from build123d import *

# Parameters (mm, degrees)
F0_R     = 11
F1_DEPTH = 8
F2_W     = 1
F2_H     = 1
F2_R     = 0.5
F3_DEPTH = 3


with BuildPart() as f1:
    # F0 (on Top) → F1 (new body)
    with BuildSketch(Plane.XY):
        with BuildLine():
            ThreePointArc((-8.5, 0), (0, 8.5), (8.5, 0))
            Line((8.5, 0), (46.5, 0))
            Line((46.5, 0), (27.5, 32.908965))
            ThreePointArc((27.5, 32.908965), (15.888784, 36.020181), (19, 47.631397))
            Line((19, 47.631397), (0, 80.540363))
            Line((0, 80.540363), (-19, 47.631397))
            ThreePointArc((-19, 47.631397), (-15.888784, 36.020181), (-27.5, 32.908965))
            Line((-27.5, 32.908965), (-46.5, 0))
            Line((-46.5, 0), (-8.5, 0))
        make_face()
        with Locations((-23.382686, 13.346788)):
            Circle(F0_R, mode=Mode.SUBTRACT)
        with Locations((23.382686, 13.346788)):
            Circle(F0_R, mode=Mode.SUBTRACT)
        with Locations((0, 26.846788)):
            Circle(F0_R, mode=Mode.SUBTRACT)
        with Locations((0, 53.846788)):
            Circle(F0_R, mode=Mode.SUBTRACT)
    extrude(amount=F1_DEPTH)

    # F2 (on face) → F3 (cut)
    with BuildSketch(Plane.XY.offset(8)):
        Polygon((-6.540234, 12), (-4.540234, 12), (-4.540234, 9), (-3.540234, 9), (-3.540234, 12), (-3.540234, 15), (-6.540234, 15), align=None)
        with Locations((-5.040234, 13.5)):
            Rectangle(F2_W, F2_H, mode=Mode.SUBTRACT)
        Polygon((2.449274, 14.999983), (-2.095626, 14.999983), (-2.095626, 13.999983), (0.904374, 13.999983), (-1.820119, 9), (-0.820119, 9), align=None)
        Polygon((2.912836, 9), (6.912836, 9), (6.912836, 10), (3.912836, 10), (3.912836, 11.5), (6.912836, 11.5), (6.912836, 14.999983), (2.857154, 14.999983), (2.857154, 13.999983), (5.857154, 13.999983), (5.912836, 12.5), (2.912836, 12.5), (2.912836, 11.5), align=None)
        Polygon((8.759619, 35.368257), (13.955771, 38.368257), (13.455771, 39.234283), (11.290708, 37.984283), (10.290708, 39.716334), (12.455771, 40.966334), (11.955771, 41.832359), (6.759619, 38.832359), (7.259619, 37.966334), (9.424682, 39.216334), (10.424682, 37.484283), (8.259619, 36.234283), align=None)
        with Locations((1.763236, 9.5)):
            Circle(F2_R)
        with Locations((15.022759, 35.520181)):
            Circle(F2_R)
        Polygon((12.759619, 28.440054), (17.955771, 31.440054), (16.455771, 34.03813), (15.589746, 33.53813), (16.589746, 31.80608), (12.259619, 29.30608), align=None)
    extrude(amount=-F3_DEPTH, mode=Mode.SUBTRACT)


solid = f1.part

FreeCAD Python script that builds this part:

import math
import FreeCAD as App
import Part
import Sketcher
from FreeCAD import Vector
Q = App.Units.Quantity


def add_polygon(sketch, points):
    """Adds a closed chain of lines whose ends are joined by coincident constraints."""
    first, n = sketch.GeometryCount, len(points)
    for a, b in zip(points, points[1:] + points[:1]):
        sketch.addGeometry(Part.LineSegment(App.Vector(*a, 0), App.Vector(*b, 0)), False)
    for i in range(n):
        sketch.addConstraint(Sketcher.Constraint("Coincident", first + i, 2, first + (i + 1) % n, 1))

doc = App.newDocument("Part")
params = doc.addObject("Spreadsheet::Sheet", "Params")
for row, (alias, value) in enumerate([
    ("sketch1_diameter", "22 mm"),
    ("sketch1_radius", "8.5 mm"),
    ("sketch1_width", "38 mm"),
    ("sketch1_length", "38 mm"),
    ("pad1_length", "8 mm"),
    ("sketch2_diameter", "1 mm"),
    ("sketch2_width", "2 mm"),
    ("sketch2_width2", "1 mm"),
    ("sketch2_width3", "4 mm"),
    ("sketch2_length", "6 mm"),
    ("pocket1_length", "3 mm"),
], start=1):
    params.set(f"A{row}", alias)
    params.set(f"B{row}", "=" + value)
    params.setAlias(f"B{row}", alias)

body = doc.addObject("PartDesign::Body", "Body")

# Sketch on XY plane
sketch1 = body.newObject("Sketcher::SketchObject", "Sketch")
sketch1.AttachmentSupport = (doc.getObject("XY_Plane"), [""])
sketch1.MapMode = "FlatFace"
sketch1.addGeometry([
    Part.ArcOfCircle(Part.Circle(Vector(0, 0, 0), Vector(0, 0, 1), 8), math.radians(0), math.radians(180)),  # 0
    Part.LineSegment(Vector(8, 0, 0), Vector(46, 0, 0)),  # 1
    Part.LineSegment(Vector(46, 0, 0), Vector(28, 33, 0)),  # 2
    Part.ArcOfCircle(Part.Circle(Vector(23, 40, 0), Vector(0, 0, 1), 9), math.radians(120), math.radians(300)),  # 3
    Part.LineSegment(Vector(19, 48, 0), Vector(0, 81, 0)),  # 4
    Part.LineSegment(Vector(0, 81, 0), Vector(-19, 48, 0)),  # 5
    Part.ArcOfCircle(Part.Circle(Vector(-23, 40, 0), Vector(0, 0, 1), 9), math.radians(-120), math.radians(60)),  # 6
    Part.LineSegment(Vector(-28, 33, 0), Vector(-46, 0, 0)),  # 7
    Part.LineSegment(Vector(-46, 0, 0), Vector(-8, 0, 0)),  # 8
    Part.Circle(Vector(-23, 13, 0), Vector(0, 0, 1), 11),  # 9
    Part.Circle(Vector(23, 13, 0), Vector(0, 0, 1), 11),  # 10
    Part.Circle(Vector(0, 27, 0), Vector(0, 0, 1), 11),  # 11
    Part.Circle(Vector(0, 54, 0), Vector(0, 0, 1), 11),  # 12
], False)
sketch1.addConstraint([
    Sketcher.Constraint("Coincident", 0, 1, 1, 1),
    Sketcher.Constraint("Coincident", 1, 2, 2, 1),
    Sketcher.Constraint("Coincident", 2, 2, 3, 2),
    Sketcher.Constraint("Coincident", 3, 1, 4, 1),
    Sketcher.Constraint("Coincident", 4, 2, 5, 1),
    Sketcher.Constraint("Coincident", 5, 2, 6, 2),
    Sketcher.Constraint("Coincident", 6, 1, 7, 1),
    Sketcher.Constraint("Coincident", 7, 2, 8, 1),
    Sketcher.Constraint("Coincident", 8, 2, 0, 2),
    Sketcher.Constraint("Horizontal", 1),
    Sketcher.Constraint("Horizontal", 8),
    Sketcher.Constraint("Coincident", 0, 3, -1, 1),
    Sketcher.Constraint("Equal", 0, 3),
    Sketcher.Constraint("Equal", 3, 6),
    Sketcher.Constraint("Equal", 9, 10),
    Sketcher.Constraint("Equal", 10, 11),
    Sketcher.Constraint("Equal", 11, 12),
    Sketcher.Constraint("Symmetric", 1, 2, 7, 2, -1, 1),
    Sketcher.Constraint("Symmetric", 3, 3, 6, 3, -2),
    Sketcher.Constraint("Symmetric", 9, 3, 10, 3, -2),
    Sketcher.Constraint("PointOnObject", 11, 3, -2),
    Sketcher.Constraint("PointOnObject", 12, 3, -2),
    Sketcher.Constraint("PointOnObject", 0, 1, -1),
    Sketcher.Constraint("PointOnObject", 4, 2, -2),
    Sketcher.Constraint("Parallel", 2, 4),
    Sketcher.Constraint("Parallel", 5, 7),
    Sketcher.Constraint("Horizontal", 3, 1, 5, 2),
    Sketcher.Constraint("Equal", 2, 4),
    Sketcher.Constraint("Diameter", 9, 22.0),
    Sketcher.Constraint("Radius", 0, 8.5),
    Sketcher.Constraint("DistanceX", 1, 1, 1, 2, 38.0),
    Sketcher.Constraint("Angle", 2, Q("120 deg")),
    Sketcher.Constraint("Distance", 2, 38.0),
    Sketcher.Constraint("DistanceY", 11, 3, 12, 3, 27.0),
    Sketcher.Constraint("DistanceX", 6, 3, 3, 3, 46.5),
    Sketcher.Constraint("DistanceY", 9, 3, 11, 3, 13.5),
    Sketcher.Constraint("DistanceY", -1, 1, 11, 3, 26.846788),
    Sketcher.Constraint("DistanceX", 9, 3, -1, 1, 23.382686),
])
sketch1.setExpression("Constraints[28]", "Params.sketch1_diameter")
sketch1.setExpression("Constraints[29]", "Params.sketch1_radius")
sketch1.setExpression("Constraints[30]", "Params.sketch1_width")
sketch1.setExpression("Constraints[32]", "Params.sketch1_length")
pad1 = body.newObject("PartDesign::Pad", "Pad")
pad1.Profile = sketch1
pad1.setExpression("Length", "Params.pad1_length")

# Sketch on XY plane
sketch2 = body.newObject("Sketcher::SketchObject", "Sketch001")
sketch2.AttachmentSupport = (doc.getObject("XY_Plane"), [""])
sketch2.MapMode = "FlatFace"
sketch2.AttachmentOffset = App.Placement(Vector(0, 0, 8), App.Rotation())
add_polygon(sketch2, [(-6.5, 12), (-4.5, 12), (-4.5, 9), (-3.5, 9), (-3.5, 15), (-6.5, 15)])  # lines 0-5
add_polygon(sketch2, [(-4.5, 13), (-5.5, 13), (-5.5, 14), (-4.5, 14)])  # lines 6-9
add_polygon(sketch2, [(2.4, 15), (-2.1, 15), (-2.1, 14), (0.9, 14), (-1.8, 9), (-0.8, 9)])  # lines 10-15
add_polygon(sketch2, [(2.9, 9), (6.9, 9), (6.9, 10), (3.9, 10), (3.9, 11.5), (6.9, 11.5), (6.9, 15), (2.9, 15), (2.9, 14), (5.9, 14), (5.9, 12.5), (2.9, 12.5)])  # lines 16-27
add_polygon(sketch2, [(8.8, 35.4), (14, 38.4), (13.5, 39.2), (11.3, 38), (10.3, 39.7), (12.5, 41), (12, 41.8), (6.8, 38.8), (7.3, 38), (9.4, 39.2), (10.4, 37.5), (8.3, 36.2)])  # lines 28-39
sketch2.addGeometry(Part.Circle(Vector(1.8, 9.5, 0), Vector(0, 0, 1), 0.5), False)  # 40
sketch2.addGeometry(Part.Circle(Vector(15, 35.5, 0), Vector(0, 0, 1), 0.5), False)  # 41
add_polygon(sketch2, [(12.8, 28.4), (18, 31.4), (16.5, 34), (15.6, 33.5), (16.6, 31.8), (12.3, 29.3)])  # lines 42-47
sketch2.addConstraint([
    Sketcher.Constraint("Horizontal", 0),
    Sketcher.Constraint("Vertical", 1),
    Sketcher.Constraint("Horizontal", 2),
    Sketcher.Constraint("Vertical", 3),
    Sketcher.Constraint("Horizontal", 4),
    Sketcher.Constraint("Vertical", 5),
    Sketcher.Constraint("Horizontal", 6),
    Sketcher.Constraint("Vertical", 7),
    Sketcher.Constraint("Horizontal", 8),
    Sketcher.Constraint("Vertical", 9),
    Sketcher.Constraint("Horizontal", 10),
    Sketcher.Constraint("Vertical", 11),
    Sketcher.Constraint("Horizontal", 12),
    Sketcher.Constraint("Horizontal", 14),
    Sketcher.Constraint("Horizontal", 16),
    Sketcher.Constraint("Vertical", 17),
    Sketcher.Constraint("Horizontal", 18),
    Sketcher.Constraint("Vertical", 19),
    Sketcher.Constraint("Horizontal", 20),
    Sketcher.Constraint("Vertical", 21),
    Sketcher.Constraint("Horizontal", 22),
    Sketcher.Constraint("Vertical", 23),
    Sketcher.Constraint("Horizontal", 24),
    Sketcher.Constraint("Horizontal", 26),
    Sketcher.Constraint("Vertical", 27),
    Sketcher.Constraint("Equal", 40, 41),
    Sketcher.Constraint("Parallel", 13, 15),
    Sketcher.Constraint("Perpendicular", 28, 29),
    Sketcher.Constraint("Perpendicular", 29, 30),
    Sketcher.Constraint("Perpendicular", 30, 31),
    Sketcher.Constraint("Perpendicular", 31, 32),
    Sketcher.Constraint("Perpendicular", 32, 33),
    Sketcher.Constraint("Perpendicular", 33, 34),
    Sketcher.Constraint("Perpendicular", 34, 35),
    Sketcher.Constraint("Perpendicular", 35, 36),
    Sketcher.Constraint("Perpendicular", 36, 37),
    Sketcher.Constraint("Perpendicular", 37, 38),
    Sketcher.Constraint("Perpendicular", 38, 39),
    Sketcher.Constraint("Perpendicular", 39, 42),
    Sketcher.Constraint("Perpendicular", 42, 43),
    Sketcher.Constraint("Perpendicular", 43, 44),
    Sketcher.Constraint("Perpendicular", 44, 45),
    Sketcher.Constraint("Perpendicular", 45, 46),
    Sketcher.Constraint("Perpendicular", 46, 47),
    Sketcher.Constraint("Horizontal", 2, 2, 13, 2),
    Sketcher.Constraint("Horizontal", 14, 2, 16, 2),
    Sketcher.Constraint("Horizontal", 15, 2, 21, 2),
    Sketcher.Constraint("Horizontal", 12, 2, 23, 2),
    Sketcher.Constraint("Vertical", 1, 2, 8, 2),
    Sketcher.Constraint("Vertical", 17, 2, 20, 2),
    Sketcher.Constraint("Equal", 2, 6),
    Sketcher.Constraint("Equal", 4, 12),
    Sketcher.Constraint("Equal", 8, 14),
    Sketcher.Constraint("Equal", 12, 18),
    Sketcher.Constraint("Equal", 20, 24),
    Sketcher.Constraint("Equal", 24, 26),
    Sketcher.Constraint("Equal", 26, 1),
    Sketcher.Constraint("Equal", 1, 5),
    Sketcher.Constraint("Equal", 14, 7),
    Sketcher.Constraint("Equal", 9, 11),
    Sketcher.Constraint("Equal", 11, 17),
    Sketcher.Constraint("Equal", 30, 32),
    Sketcher.Constraint("Equal", 29, 33),
    Sketcher.Constraint("Equal", 28, 34),
    Sketcher.Constraint("Equal", 33, 35),
    Sketcher.Constraint("Equal", 32, 36),
    Sketcher.Constraint("Equal", 31, 37),
    Sketcher.Constraint("Equal", 34, 42),
    Sketcher.Constraint("Equal", 39, 44),
    Sketcher.Constraint("Equal", 37, 45),
    Sketcher.Constraint("Equal", 44, 47),
    Sketcher.Constraint("Diameter", 40, 1.0),
    Sketcher.Constraint("DistanceX", 0, 1, 0, 2, 2.0),
    Sketcher.Constraint("DistanceX", 2, 1, 2, 2, 1.0),
    Sketcher.Constraint("DistanceX", 16, 1, 16, 2, 4.0),
    Sketcher.Constraint("Angle", 28, Q("30.000002 deg")),
    Sketcher.Constraint("Distance", 28, 6.0),
    Sketcher.Constraint("Distance", 29, 1.000001),
    Sketcher.Constraint("Distance", 31, 2.0),
    Sketcher.Constraint("DistanceY", 19, 1, 19, 2, 1.5),
    Sketcher.Constraint("DistanceY", 27, 2, 27, 1, 3.5),
    Sketcher.Constraint("DistanceY", -1, 1, 0, 2, 12.0),
    Sketcher.Constraint("DistanceY", -1, 1, 6, 2, 13.0),
    Sketcher.Constraint("DistanceY", 40, 3, 19, 2, 2.0),
    Sketcher.Constraint("DistanceX", 28, 2, 42, 2, 4.0),
    Sketcher.Constraint("Distance", 30, 2.5),
    Sketcher.Constraint("DistanceX", 10, 2, 10, 1, 4.5449),
    Sketcher.Constraint("DistanceX", 40, 3, 16, 2, 5.1496),
    Sketcher.Constraint("DistanceY", 41, 3, 29, 2, 3.714102),
    Sketcher.Constraint("DistanceY", 21, 2, 29, 2, 24.2343),
    Sketcher.Constraint("DistanceY", 45, 2, 41, 3, 3.714101),
    Sketcher.Constraint("DistanceX", 22, 2, 22, 1, 4.055682),
    Sketcher.Constraint("DistanceY", 21, 1, 21, 2, 3.499983),
    Sketcher.Constraint("DistanceX", -1, 1, 41, 3, 15.022759),
    Sketcher.Constraint("DistanceX", 13, 2, -1, 1, 1.820119),
    Sketcher.Constraint("DistanceX", -1, 1, 28, 2, 13.955771),
    Sketcher.Constraint("DistanceX", 0, 2, 40, 3, 6.30347),
    Sketcher.Constraint("DistanceX", 12, 2, 18, 2, 3.008462),
])
sketch2.setExpression("Constraints[117]", "Params.sketch2_diameter")
sketch2.setExpression("Constraints[118]", "Params.sketch2_width")
sketch2.setExpression("Constraints[119]", "Params.sketch2_width2")
sketch2.setExpression("Constraints[120]", "Params.sketch2_width3")
sketch2.setExpression("Constraints[122]", "Params.sketch2_length")
pocket1 = body.newObject("PartDesign::Pocket", "Pocket")
pocket1.Profile = sketch2
pocket1.setExpression("Length", "Params.pocket1_length")

doc.recompute()
